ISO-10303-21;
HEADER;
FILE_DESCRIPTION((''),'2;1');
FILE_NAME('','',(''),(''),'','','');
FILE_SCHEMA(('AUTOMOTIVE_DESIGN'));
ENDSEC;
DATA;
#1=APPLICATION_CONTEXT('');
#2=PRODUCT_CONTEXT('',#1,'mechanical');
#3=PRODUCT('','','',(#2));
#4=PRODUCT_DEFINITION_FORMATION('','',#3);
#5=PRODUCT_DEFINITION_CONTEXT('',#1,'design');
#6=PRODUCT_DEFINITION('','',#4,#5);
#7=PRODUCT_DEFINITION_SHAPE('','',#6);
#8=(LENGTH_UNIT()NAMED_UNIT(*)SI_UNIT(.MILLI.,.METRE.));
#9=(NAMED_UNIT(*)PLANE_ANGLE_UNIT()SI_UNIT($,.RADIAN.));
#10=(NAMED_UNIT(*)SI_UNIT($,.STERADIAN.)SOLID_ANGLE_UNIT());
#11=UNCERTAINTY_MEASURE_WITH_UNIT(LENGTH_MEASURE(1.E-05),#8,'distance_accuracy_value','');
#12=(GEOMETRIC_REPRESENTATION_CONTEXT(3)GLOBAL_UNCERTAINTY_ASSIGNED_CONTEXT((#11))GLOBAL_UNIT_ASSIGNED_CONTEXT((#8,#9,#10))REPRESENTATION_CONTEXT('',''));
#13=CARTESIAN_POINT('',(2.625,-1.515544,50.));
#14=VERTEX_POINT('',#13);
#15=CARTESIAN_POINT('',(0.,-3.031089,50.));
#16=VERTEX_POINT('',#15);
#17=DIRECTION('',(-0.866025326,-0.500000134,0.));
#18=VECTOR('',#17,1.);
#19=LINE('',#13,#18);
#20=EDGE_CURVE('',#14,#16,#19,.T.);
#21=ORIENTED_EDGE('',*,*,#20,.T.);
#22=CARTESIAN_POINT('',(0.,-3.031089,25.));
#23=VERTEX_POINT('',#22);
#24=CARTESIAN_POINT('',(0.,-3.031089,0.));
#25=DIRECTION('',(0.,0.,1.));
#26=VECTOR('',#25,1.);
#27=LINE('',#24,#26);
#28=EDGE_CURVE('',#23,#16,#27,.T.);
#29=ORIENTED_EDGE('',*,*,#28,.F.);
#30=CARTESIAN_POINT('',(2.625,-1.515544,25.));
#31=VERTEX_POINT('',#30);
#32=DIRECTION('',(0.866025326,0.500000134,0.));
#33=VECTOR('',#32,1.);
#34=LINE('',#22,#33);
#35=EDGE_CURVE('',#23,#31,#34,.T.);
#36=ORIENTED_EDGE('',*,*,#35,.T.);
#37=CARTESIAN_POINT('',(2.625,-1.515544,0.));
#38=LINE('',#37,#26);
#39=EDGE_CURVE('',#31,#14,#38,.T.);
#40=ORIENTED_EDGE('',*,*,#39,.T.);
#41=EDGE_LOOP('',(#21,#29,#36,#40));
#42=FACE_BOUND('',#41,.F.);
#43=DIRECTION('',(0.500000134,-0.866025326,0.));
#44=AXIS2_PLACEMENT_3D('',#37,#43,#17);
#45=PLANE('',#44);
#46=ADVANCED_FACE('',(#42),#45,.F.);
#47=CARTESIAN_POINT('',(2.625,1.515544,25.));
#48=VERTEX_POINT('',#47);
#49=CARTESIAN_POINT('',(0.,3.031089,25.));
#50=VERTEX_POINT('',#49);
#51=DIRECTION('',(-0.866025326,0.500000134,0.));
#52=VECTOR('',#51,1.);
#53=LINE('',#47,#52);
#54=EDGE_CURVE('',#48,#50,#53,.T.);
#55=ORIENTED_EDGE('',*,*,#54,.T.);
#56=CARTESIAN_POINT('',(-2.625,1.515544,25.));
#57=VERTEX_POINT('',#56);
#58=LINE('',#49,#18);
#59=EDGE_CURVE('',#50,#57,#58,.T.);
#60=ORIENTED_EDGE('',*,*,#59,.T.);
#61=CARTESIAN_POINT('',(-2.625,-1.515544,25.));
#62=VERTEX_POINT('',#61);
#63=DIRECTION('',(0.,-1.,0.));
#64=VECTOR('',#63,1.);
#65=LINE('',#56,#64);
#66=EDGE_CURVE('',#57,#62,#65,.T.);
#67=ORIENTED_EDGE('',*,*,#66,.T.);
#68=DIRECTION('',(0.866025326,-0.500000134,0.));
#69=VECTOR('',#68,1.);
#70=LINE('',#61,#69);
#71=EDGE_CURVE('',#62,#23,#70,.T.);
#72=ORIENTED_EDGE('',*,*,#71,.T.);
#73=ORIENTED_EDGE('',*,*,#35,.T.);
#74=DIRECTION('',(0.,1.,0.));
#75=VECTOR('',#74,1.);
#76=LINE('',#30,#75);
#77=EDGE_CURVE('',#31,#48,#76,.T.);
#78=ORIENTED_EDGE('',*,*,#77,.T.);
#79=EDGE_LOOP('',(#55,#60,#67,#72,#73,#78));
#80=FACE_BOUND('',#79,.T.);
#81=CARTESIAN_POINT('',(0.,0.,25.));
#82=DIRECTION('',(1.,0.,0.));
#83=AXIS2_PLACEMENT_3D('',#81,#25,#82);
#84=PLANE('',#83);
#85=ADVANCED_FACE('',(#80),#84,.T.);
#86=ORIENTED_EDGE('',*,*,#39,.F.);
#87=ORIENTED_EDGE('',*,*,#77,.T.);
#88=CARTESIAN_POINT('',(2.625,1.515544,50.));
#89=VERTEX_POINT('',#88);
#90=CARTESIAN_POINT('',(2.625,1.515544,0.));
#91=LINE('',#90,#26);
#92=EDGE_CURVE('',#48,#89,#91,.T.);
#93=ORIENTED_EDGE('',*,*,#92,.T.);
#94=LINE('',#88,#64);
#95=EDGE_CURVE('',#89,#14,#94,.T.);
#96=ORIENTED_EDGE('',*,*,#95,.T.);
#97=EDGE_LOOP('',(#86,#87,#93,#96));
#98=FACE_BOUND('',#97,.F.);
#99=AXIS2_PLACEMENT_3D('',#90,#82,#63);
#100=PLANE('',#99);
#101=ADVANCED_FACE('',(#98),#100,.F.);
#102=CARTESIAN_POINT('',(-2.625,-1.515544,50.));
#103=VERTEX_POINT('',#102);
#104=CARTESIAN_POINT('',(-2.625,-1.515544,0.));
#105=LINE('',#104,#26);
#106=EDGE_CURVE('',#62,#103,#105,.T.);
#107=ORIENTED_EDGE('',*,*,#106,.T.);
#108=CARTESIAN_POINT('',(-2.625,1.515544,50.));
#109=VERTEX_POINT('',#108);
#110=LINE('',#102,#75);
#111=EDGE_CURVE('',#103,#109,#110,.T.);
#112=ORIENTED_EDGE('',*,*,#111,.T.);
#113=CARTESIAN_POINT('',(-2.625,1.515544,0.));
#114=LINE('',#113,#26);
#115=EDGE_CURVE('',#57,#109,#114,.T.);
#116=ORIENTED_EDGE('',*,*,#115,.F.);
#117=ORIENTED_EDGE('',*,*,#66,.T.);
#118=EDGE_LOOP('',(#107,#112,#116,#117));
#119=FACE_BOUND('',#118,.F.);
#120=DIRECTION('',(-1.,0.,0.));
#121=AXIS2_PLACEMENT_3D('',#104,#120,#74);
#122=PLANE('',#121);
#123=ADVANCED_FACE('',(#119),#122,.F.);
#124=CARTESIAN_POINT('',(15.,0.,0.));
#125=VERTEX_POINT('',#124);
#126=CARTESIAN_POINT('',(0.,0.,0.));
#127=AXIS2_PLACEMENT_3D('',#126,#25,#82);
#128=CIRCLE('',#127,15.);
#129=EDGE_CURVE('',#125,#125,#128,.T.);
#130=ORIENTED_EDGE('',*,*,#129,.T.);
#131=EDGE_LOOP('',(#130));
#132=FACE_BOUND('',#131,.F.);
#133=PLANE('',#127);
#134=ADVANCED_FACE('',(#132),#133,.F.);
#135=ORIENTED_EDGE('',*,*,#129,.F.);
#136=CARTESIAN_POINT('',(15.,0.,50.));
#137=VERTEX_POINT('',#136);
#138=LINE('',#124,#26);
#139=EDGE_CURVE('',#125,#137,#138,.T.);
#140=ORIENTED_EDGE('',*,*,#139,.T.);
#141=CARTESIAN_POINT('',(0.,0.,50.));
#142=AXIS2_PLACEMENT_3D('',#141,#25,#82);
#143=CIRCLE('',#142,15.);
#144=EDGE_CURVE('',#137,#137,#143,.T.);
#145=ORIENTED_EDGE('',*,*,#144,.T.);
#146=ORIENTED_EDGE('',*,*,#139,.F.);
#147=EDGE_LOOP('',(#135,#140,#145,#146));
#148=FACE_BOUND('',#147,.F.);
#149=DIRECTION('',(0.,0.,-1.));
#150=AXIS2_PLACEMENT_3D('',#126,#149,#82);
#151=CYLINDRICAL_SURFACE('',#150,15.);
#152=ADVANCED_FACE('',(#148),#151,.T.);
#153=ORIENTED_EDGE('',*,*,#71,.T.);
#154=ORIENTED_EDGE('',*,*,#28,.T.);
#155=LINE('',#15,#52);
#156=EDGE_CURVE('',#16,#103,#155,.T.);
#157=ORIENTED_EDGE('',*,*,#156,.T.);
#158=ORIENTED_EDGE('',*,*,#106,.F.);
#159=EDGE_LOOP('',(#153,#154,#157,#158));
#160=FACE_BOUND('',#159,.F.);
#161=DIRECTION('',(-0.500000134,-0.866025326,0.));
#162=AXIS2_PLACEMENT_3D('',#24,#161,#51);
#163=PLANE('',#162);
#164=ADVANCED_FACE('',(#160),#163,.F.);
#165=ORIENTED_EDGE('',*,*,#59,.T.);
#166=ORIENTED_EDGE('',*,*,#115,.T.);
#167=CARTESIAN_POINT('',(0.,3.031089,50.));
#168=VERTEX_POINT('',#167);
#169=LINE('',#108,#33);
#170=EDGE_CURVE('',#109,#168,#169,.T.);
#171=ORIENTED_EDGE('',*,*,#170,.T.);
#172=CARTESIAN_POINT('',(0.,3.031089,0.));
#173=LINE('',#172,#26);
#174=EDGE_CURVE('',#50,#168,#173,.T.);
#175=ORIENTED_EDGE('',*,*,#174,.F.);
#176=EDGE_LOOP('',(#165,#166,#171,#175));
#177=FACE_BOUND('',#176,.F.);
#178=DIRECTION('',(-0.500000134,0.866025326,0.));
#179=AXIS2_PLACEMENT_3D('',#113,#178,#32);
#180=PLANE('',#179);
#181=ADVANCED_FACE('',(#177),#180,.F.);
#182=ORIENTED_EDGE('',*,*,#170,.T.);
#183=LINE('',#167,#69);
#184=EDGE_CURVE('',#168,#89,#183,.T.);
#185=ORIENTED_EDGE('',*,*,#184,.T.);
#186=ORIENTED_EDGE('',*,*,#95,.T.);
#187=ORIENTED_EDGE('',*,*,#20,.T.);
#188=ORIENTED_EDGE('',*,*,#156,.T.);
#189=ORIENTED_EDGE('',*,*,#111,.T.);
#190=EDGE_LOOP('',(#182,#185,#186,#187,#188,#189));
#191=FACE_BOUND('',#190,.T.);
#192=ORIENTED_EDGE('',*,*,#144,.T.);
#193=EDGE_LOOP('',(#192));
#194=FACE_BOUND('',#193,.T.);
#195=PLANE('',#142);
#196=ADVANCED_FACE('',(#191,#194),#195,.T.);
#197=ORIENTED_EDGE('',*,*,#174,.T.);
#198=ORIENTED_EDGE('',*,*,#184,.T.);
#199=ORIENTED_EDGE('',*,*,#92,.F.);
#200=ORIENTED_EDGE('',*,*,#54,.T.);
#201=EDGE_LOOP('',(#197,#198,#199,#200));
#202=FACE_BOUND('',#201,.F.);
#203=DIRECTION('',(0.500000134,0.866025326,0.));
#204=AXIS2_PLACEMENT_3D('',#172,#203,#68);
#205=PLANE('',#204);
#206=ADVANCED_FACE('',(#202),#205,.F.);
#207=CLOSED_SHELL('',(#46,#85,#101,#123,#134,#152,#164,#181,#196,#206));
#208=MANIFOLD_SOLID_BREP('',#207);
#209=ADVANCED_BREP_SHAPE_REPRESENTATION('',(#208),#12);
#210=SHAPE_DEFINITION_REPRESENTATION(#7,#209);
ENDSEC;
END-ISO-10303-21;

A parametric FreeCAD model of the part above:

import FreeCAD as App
import Part
import Sketcher
from FreeCAD import Vector
Q = App.Units.Quantity

doc = App.newDocument("Part")
body = doc.addObject("PartDesign::Body", "Body")

# Sketch on XY plane
sketch1 = doc.addObject("Sketcher::SketchObject", "Sketch")
body.addObject(sketch1)
sketch1.AttachmentSupport = (doc.XY_Plane, [""])
sketch1.MapMode = "FlatFace"
sketch1.addGeometry(Part.Circle(Vector(0, 0, 0), Vector(0, 0, 1), 15), False)
sketch1.addGeometry(Part.LineSegment(Vector(-2.6, 1.5, 0), Vector(0, 3, 0)), False)
sketch1.addGeometry(Part.LineSegment(Vector(0, 3, 0), Vector(2.6, 1.5, 0)), False)
sketch1.addGeometry(Part.LineSegment(Vector(2.6, 1.5, 0), Vector(2.6, -1.5, 0)), False)
sketch1.addGeometry(Part.LineSegment(Vector(2.6, -1.5, 0), Vector(0, -3, 0)), False)
sketch1.addGeometry(Part.LineSegment(Vector(0, -3, 0), Vector(-2.6, -1.5, 0)), False)
sketch1.addGeometry(Part.LineSegment(Vector(-2.6, -1.5, 0), Vector(-2.6, 1.5, 0)), False)
sketch1.addConstraint(Sketcher.Constraint("Coincident", 1, 2, 2, 1))
sketch1.addConstraint(Sketcher.Constraint("Coincident", 2, 2, 3, 1))
sketch1.addConstraint(Sketcher.Constraint("Coincident", 3, 2, 4, 1))
sketch1.addConstraint(Sketcher.Constraint("Coincident", 4, 2, 5, 1))
sketch1.addConstraint(Sketcher.Constraint("Coincident", 5, 2, 6, 1))
sketch1.addConstraint(Sketcher.Constraint("Coincident", 6, 2, 1, 1))
sketch1.addConstraint(Sketcher.Constraint("Vertical", 3))
sketch1.addConstraint(Sketcher.Constraint("Vertical", 6))
sketch1.addConstraint(Sketcher.Constraint("Coincident", 0, 3, -1, 1))
sketch1.addConstraint(Sketcher.Constraint("Symmetric", 1, 2, 4, 2, -1, 1))
sketch1.addConstraint(Sketcher.Constraint("Symmetric", 2, 2, 5, 2, -1, 1))
sketch1.addConstraint(Sketcher.Constraint("PointOnObject", 1, 2, -2))
sketch1.addConstraint(Sketcher.Constraint("Parallel", 1, 4))
sketch1.addConstraint(Sketcher.Constraint("Horizontal", 3, 2, 5, 2))
sketch1.addConstraint(Sketcher.Constraint("Diameter", 0, Q("30 mm")))
sketch1.addConstraint(Sketcher.Constraint("Angle", 1, Q("30.000009 deg")))
sketch1.addConstraint(Sketcher.Constraint("DistanceX", 5, 2, 3, 2, Q("5.25 mm")))
sketch1.addConstraint(Sketcher.Constraint("DistanceY", 3, 2, 3, 1, Q("3.031088 mm")))
pad1 = doc.addObject("PartDesign::Pad", "Pad")
body.addObject(pad1)
pad1.Profile = sketch1
pad1.Length = 50

# Sketch on XY plane
sketch2 = doc.addObject("Sketcher::SketchObject", "Sketch001")
body.addObject(sketch2)
sketch2.AttachmentSupport = (doc.XY_Plane, [""])
sketch2.MapMode = "FlatFace"
sketch2.addGeometry(Part.LineSegment(Vector(2.6, -1.5, 0), Vector(2.6, 1.5, 0)), False)
sketch2.addGeometry(Part.LineSegment(Vector(2.6, 1.5, 0), Vector(0, 3, 0)), False)
sketch2.addGeometry(Part.LineSegment(Vector(0, 3, 0), Vector(-2.6, 1.5, 0)), False)
sketch2.addGeometry(Part.LineSegment(Vector(-2.6, 1.5, 0), Vector(-2.6, -1.5, 0)), False)
sketch2.addGeometry(Part.LineSegment(Vector(-2.6, -1.5, 0), Vector(0, -3, 0)), False)
sketch2.addGeometry(Part.LineSegment(Vector(0, -3, 0), Vector(2.6, -1.5, 0)), False)
sketch2.addConstraint(Sketcher.Constraint("Coincident", 0, 2, 1, 1))
sketch2.addConstraint(Sketcher.Constraint("Coincident", 1, 2, 2, 1))
sketch2.addConstraint(Sketcher.Constraint("Coincident", 2, 2, 3, 1))
sketch2.addConstraint(Sketcher.Constraint("Coincident", 3, 2, 4, 1))
sketch2.addConstraint(Sketcher.Constraint("Coincident", 4, 2, 5, 1))
sketch2.addConstraint(Sketcher.Constraint("Coincident", 5, 2, 0, 1))
sketch2.addConstraint(Sketcher.Constraint("Vertical", 0))
sketch2.addConstraint(Sketcher.Constraint("Vertical", 3))
sketch2.addConstraint(Sketcher.Constraint("Symmetric", 0, 2, 3, 2, -1, 1))
sketch2.addConstraint(Sketcher.Constraint("Symmetric", 1, 2, 4, 2, -1, 1))
sketch2.addConstraint(Sketcher.Constraint("PointOnObject", 1, 2, -2))
sketch2.addConstraint(Sketcher.Constraint("Parallel", 2, 5))
sketch2.addConstraint(Sketcher.Constraint("Horizontal", 0, 2, 2, 2))
sketch2.addConstraint(Sketcher.Constraint("Angle", 1, Q("149.999991 deg")))
sketch2.addConstraint(Sketcher.Constraint("DistanceX", 2, 2, 0, 2, Q("5.25 mm")))
sketch2.addConstraint(Sketcher.Constraint("DistanceY", 0, 1, 0, 2, Q("3.031088 mm")))
pad2 = doc.addObject("PartDesign::Pad", "Pad001")
body.addObject(pad2)
pad2.Profile = sketch2
pad2.Length = 25

doc.recompute()
